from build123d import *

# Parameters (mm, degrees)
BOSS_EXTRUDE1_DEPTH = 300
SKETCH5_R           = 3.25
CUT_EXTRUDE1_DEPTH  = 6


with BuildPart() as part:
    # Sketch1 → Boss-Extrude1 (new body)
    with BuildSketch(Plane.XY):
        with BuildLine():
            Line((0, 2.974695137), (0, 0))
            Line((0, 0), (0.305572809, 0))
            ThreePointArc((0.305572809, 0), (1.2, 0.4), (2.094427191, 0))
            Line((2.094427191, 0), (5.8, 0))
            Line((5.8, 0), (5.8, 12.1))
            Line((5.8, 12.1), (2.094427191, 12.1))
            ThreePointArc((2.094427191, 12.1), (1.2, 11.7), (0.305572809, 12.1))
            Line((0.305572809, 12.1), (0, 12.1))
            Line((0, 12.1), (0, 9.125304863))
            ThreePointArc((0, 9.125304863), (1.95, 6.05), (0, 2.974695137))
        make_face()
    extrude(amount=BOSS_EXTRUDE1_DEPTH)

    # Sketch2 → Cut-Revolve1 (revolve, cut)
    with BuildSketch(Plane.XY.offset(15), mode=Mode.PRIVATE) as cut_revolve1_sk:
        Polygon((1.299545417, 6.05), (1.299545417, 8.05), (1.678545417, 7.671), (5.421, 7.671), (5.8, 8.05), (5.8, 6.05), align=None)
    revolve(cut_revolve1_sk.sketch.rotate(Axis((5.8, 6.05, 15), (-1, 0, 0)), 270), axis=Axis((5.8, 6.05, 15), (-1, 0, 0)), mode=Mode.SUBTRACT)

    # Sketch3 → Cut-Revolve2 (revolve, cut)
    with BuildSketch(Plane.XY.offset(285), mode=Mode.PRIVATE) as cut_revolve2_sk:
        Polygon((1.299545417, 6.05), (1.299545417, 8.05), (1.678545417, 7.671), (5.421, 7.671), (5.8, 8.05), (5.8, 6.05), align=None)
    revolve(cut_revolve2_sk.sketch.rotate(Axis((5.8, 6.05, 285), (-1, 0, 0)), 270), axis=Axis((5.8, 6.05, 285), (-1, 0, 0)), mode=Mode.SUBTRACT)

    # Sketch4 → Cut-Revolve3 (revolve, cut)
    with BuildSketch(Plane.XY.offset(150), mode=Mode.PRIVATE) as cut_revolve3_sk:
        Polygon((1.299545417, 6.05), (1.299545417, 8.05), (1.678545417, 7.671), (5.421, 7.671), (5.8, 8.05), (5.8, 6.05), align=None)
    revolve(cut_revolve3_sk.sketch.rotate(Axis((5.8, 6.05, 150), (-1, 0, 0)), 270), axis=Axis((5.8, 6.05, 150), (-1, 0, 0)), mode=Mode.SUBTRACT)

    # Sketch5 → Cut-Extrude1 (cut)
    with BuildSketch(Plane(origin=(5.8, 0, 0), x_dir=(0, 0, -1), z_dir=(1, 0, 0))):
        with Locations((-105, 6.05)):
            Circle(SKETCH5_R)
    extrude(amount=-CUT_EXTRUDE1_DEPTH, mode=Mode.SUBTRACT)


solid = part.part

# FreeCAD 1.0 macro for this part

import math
import FreeCAD as App
import Part
import Sketcher


def add_polygon(sketch, points):
    """Adds a closed chain of lines whose ends are joined by coincident constraints."""
    first, n = sketch.GeometryCount, len(points)
    for a, b in zip(points, points[1:] + points[:1]):
        sketch.addGeometry(Part.LineSegment(App.Vector(*a, 0), App.Vector(*b, 0)), False)
    for i in range(n):
        sketch.addConstraint(Sketcher.Constraint("Coincident", first + i, 2, first + (i + 1) % n, 1))

doc = App.newDocument("Part")
body = doc.addObject("PartDesign::Body", "Body")

# Sketch on XY plane
sketch1 = doc.addObject("Sketcher::SketchObject", "Sketch")
body.addObject(sketch1)
sketch1.AttachmentSupport = (doc.XY_Plane, [""])
sketch1.MapMode = "FlatFace"
sketch1.addGeometry([
    Part.LineSegment(App.Vector(0, 2.974695, 0), App.Vector(0, 0, 0)),  # 0
    Part.LineSegment(App.Vector(0, 0, 0), App.Vector(0.305573, 0, 0)),  # 1
    Part.ArcOfCircle(Part.Circle(App.Vector(1.2, -0.8, 0), App.Vector(0, 0, 1), 1.2), math.radians(41.810315), math.radians(138.189685)),  # 2
    Part.LineSegment(App.Vector(2.094427, 0, 0), App.Vector(5.8, 0, 0)),  # 3
    Part.LineSegment(App.Vector(5.8, 0, 0), App.Vector(5.8, 12.1, 0)),  # 4
    Part.LineSegment(App.Vector(5.8, 12.1, 0), App.Vector(2.094427, 12.1, 0)),  # 5
    Part.ArcOfCircle(Part.Circle(App.Vector(1.2, 12.9, 0), App.Vector(0, 0, 1), 1.2), math.radians(-138.189685), math.radians(-41.810315)),  # 6
    Part.LineSegment(App.Vector(0.305573, 12.1, 0), App.Vector(0, 12.1, 0)),  # 7
    Part.LineSegment(App.Vector(0, 12.1, 0), App.Vector(0, 9.125305, 0)),  # 8
    Part.ArcOfCircle(Part.Circle(App.Vector(-1.45, 6.05, 0), App.Vector(0, 0, 1), 3.4), math.radians(-64.756218), math.radians(64.756218)),  # 9
], False)
sketch1.addConstraint([
    Sketcher.Constraint("Coincident", 0, 2, 1, 1),
    Sketcher.Constraint("Coincident", 1, 2, 2, 2),
    Sketcher.Constraint("Coincident", 2, 1, 3, 1),
    Sketcher.Constraint("Coincident", 3, 2, 4, 1),
    Sketcher.Constraint("Coincident", 4, 2, 5, 1),
    Sketcher.Constraint("Coincident", 5, 2, 6, 2),
    Sketcher.Constraint("Coincident", 6, 1, 7, 1),
    Sketcher.Constraint("Coincident", 7, 2, 8, 1),
    Sketcher.Constraint("Coincident", 8, 2, 9, 2),
    Sketcher.Constraint("Coincident", 9, 1, 0, 1),
    Sketcher.Constraint("Vertical", 0),
    Sketcher.Constraint("Horizontal", 1),
    Sketcher.Constraint("Horizontal", 3),
    Sketcher.Constraint("Vertical", 4),
    Sketcher.Constraint("Horizontal", 5),
    Sketcher.Constraint("Horizontal", 7),
    Sketcher.Constraint("Vertical", 8),
    Sketcher.Constraint("Coincident", 0, 2, -1, 1),
    Sketcher.Constraint("Equal", 2, 6),
    Sketcher.Constraint("PointOnObject", 2, 1, -1),
    Sketcher.Constraint("PointOnObject", 7, 2, -2),
    Sketcher.Constraint("Horizontal", 5, 2, 6, 1),
    Sketcher.Constraint("Vertical", 2, 3, 6, 3),
    Sketcher.Constraint("Vertical", 2, 1, 5, 2),
    Sketcher.Constraint("Equal", 0, 8),
    Sketcher.Constraint("Radius", 2, 1.2),
    Sketcher.Constraint("Radius", 9, 3.4),
    Sketcher.Constraint("DistanceY", 4, 1, 4, 2, 12.1),
    Sketcher.Constraint("DistanceX", -1, 1, 2, 3, 1.2),
    Sketcher.Constraint("DistanceY", 2, 3, -1, 1, 0.8),
    Sketcher.Constraint("DistanceX", -1, 1, 3, 2, 5.8),
    Sketcher.Constraint("DistanceX", 9, 3, -1, 1, 1.45),
])
pad1 = doc.addObject("PartDesign::Pad", "Pad")
body.addObject(pad1)
pad1.Profile = sketch1
pad1.Length = 300

# Sketch on XY plane
sketch2 = doc.addObject("Sketcher::SketchObject", "Sketch001")
body.addObject(sketch2)
sketch2.AttachmentSupport = (doc.XY_Plane, [""])
sketch2.MapMode = "FlatFace"
sketch2.AttachmentOffset = App.Placement(App.Vector(0, 0, 15), App.Rotation())
add_polygon(sketch2, [(1.299545, 8.05), (1.299545, 6.05), (5.8, 6.05), (5.8, 8.05), (5.421, 7.671), (1.678545, 7.671)])  # lines 0-5
sketch2.addGeometry(Part.LineSegment(App.Vector(5.8, 6.05, 0), App.Vector(1.299545, 6.05, 0)), True)  # axis
sketch2.addConstraint([
    Sketcher.Constraint("Vertical", 0),
    Sketcher.Constraint("Horizontal", 1),
    Sketcher.Constraint("Vertical", 2),
    Sketcher.Constraint("Horizontal", 4),
    Sketcher.Constraint("Horizontal", 6),
    Sketcher.Constraint("Coincident", 6, 1, 1, 2),
    Sketcher.Constraint("Perpendicular", 3, 5),
    Sketcher.Constraint("Horizontal", 2, 2, 5, 2),
    Sketcher.Constraint("Vertical", 5, 2, 6, 2),
    Sketcher.Constraint("Equal", 3, 5),
    Sketcher.Constraint("DistanceY", 0, 2, 0, 1, 2.0),
    Sketcher.Constraint("DistanceX", -1, 1, 1, 2, 5.8),
    Sketcher.Constraint("DistanceY", -1, 1, 0, 2, 6.05),
    Sketcher.Constraint("DistanceX", -1, 1, 3, 2, 5.421),
    Sketcher.Constraint("DistanceX", 1, 1, 1, 2, 4.500455),
])
groove = doc.addObject("PartDesign::Groove", "Groove")
body.addObject(groove)
groove.Profile = sketch2
groove.ReferenceAxis = (sketch2, ["Axis0"])
groove.Angle = 360

# Sketch on XY plane
sketch3 = doc.addObject("Sketcher::SketchObject", "Sketch002")
body.addObject(sketch3)
sketch3.AttachmentSupport = (doc.XY_Plane, [""])
sketch3.MapMode = "FlatFace"
sketch3.AttachmentOffset = App.Placement(App.Vector(0, 0, 285), App.Rotation())
add_polygon(sketch3, [(1.299545, 8.05), (1.299545, 6.05), (5.8, 6.05), (5.8, 8.05), (5.421, 7.671), (1.678545, 7.671)])  # lines 0-5
sketch3.addGeometry(Part.LineSegment(App.Vector(5.8, 6.05, 0), App.Vector(1.299545, 6.05, 0)), True)  # axis
sketch3.addConstraint([
    Sketcher.Constraint("Vertical", 0),
    Sketcher.Constraint("Horizontal", 1),
    Sketcher.Constraint("Vertical", 2),
    Sketcher.Constraint("Horizontal", 4),
    Sketcher.Constraint("Horizontal", 6),
    Sketcher.Constraint("Coincident", 6, 1, 1, 2),
    Sketcher.Constraint("Perpendicular", 3, 5),
    Sketcher.Constraint("Horizontal", 2, 2, 5, 2),
    Sketcher.Constraint("Vertical", 5, 2, 6, 2),
    Sketcher.Constraint("Equal", 3, 5),
    Sketcher.Constraint("DistanceY", 0, 2, 0, 1, 2.0),
    Sketcher.Constraint("DistanceX", -1, 1, 1, 2, 5.8),
    Sketcher.Constraint("DistanceY", -1, 1, 0, 2, 6.05),
    Sketcher.Constraint("DistanceX", -1, 1, 3, 2, 5.421),
    Sketcher.Constraint("DistanceX", 1, 1, 1, 2, 4.500455),
])
groove2 = doc.addObject("PartDesign::Groove", "Groove001")
body.addObject(groove2)
groove2.Profile = sketch3
groove2.ReferenceAxis = (sketch3, ["Axis0"])
groove2.Angle = 360

# Sketch on XY plane
sketch4 = doc.addObject("Sketcher::SketchObject", "Sketch003")
body.addObject(sketch4)
sketch4.AttachmentSupport = (doc.XY_Plane, [""])
sketch4.MapMode = "FlatFace"
sketch4.AttachmentOffset = App.Placement(App.Vector(0, 0, 150), App.Rotation())
add_polygon(sketch4, [(1.299545, 8.05), (1.299545, 6.05), (5.8, 6.05), (5.8, 8.05), (5.421, 7.671), (1.678545, 7.671)])  # lines 0-5
sketch4.addGeometry(Part.LineSegment(App.Vector(5.8, 6.05, 0), App.Vector(1.299545, 6.05, 0)), True)  # axis
sketch4.addConstraint([
    Sketcher.Constraint("Vertical", 0),
    Sketcher.Constraint("Horizontal", 1),
    Sketcher.Constraint("Vertical", 2),
    Sketcher.Constraint("Horizontal", 4),
    Sketcher.Constraint("Horizontal", 6),
    Sketcher.Constraint("Coincident", 6, 1, 1, 2),
    Sketcher.Constraint("Perpendicular", 3, 5),
    Sketcher.Constraint("Horizontal", 2, 2, 5, 2),
    Sketcher.Constraint("Vertical", 5, 2, 6, 2),
    Sketcher.Constraint("Equal", 3, 5),
    Sketcher.Constraint("DistanceY", 0, 2, 0, 1, 2.0),
    Sketcher.Constraint("DistanceX", -1, 1, 1, 2, 5.8),
    Sketcher.Constraint("DistanceY", -1, 1, 0, 2, 6.05),
    Sketcher.Constraint("DistanceX", -1, 1, 3, 2, 5.421),
    Sketcher.Constraint("DistanceX", 1, 1, 1, 2, 4.500455),
])
groove3 = doc.addObject("PartDesign::Groove", "Groove002")
body.addObject(groove3)
groove3.Profile = sketch4
groove3.ReferenceAxis = (sketch4, ["Axis0"])
groove3.Angle = 360

# Sketch on YZ plane
sketch5 = doc.addObject("Sketcher::SketchObject", "Sketch004")
body.addObject(sketch5)
sketch5.AttachmentSupport = (doc.YZ_Plane, [""])
sketch5.MapMode = "FlatFace"
sketch5.AttachmentOffset = App.Placement(App.Vector(0, 0, 5.8), App.Rotation())
sketch5.addGeometry(Part.Circle(App.Vector(6.05, 105, 0), App.Vector(0, 0, 1), 3.25), False)
sketch5.addConstraint([
    Sketcher.Constraint("Diameter", 0, 6.5),
    Sketcher.Constraint("DistanceY", -1, 1, 0, 3, 105.0),
    Sketcher.Constraint("DistanceX", -1, 1, 0, 3, 6.05),
])
pocket1 = doc.addObject("PartDesign::Pocket", "Pocket")
body.addObject(pocket1)
pocket1.Profile = sketch5
pocket1.Length = 6

doc.recompute()
